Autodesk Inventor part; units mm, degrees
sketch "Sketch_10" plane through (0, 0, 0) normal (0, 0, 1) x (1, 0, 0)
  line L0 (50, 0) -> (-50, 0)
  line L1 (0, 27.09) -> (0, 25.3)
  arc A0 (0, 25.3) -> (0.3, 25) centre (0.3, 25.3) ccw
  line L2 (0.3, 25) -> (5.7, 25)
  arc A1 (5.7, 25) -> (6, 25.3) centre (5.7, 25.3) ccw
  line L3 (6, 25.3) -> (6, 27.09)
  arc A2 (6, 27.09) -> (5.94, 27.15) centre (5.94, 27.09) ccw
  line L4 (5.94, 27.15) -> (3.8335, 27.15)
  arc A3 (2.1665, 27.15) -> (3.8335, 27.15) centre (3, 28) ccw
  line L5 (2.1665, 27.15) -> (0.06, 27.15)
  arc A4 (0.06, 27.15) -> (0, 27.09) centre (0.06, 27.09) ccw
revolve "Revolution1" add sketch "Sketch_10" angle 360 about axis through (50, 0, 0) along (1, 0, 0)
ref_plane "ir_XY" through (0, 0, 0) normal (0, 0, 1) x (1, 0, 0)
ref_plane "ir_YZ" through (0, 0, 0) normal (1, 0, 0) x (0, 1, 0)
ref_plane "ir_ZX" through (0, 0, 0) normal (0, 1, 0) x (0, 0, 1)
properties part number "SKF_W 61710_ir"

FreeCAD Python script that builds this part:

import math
import FreeCAD as App
import Part
import Sketcher

V = App.Vector
Q = App.Units.Quantity

doc = App.newDocument("Part")
body = doc.addObject("PartDesign::Body", "Body")

sketch1 = body.newObject("Sketcher::SketchObject", "Sketch")
sketch1.AttachmentSupport = (doc.getObject("XY_Plane"), [""])
sketch1.MapMode = "FlatFace"
sketch1.addGeometry(Part.ArcOfCircle(Part.Circle(V(0.06, 27.09, 0), V(0, 0, 1), 0.06), math.radians(90), math.radians(180)), False)
sketch1.addGeometry(Part.LineSegment(V(0, 27.09, 0), V(0, 25.3, 0)), False)
sketch1.addGeometry(Part.ArcOfCircle(Part.Circle(V(0.3, 25.3, 0), V(0, 0, 1), 0.3), math.radians(180), math.radians(270)), False)
sketch1.addGeometry(Part.LineSegment(V(0.3, 25, 0), V(5.7, 25, 0)), False)
sketch1.addGeometry(Part.ArcOfCircle(Part.Circle(V(5.7, 25.3, 0), V(0, 0, 1), 0.3), math.radians(-90), math.radians(0)), False)
sketch1.addGeometry(Part.LineSegment(V(6, 25.3, 0), V(6, 27.09, 0)), False)
sketch1.addGeometry(Part.ArcOfCircle(Part.Circle(V(5.94, 27.09, 0), V(0, 0, 1), 0.06), math.radians(0), math.radians(90)), False)
sketch1.addGeometry(Part.LineSegment(V(5.94, 27.15, 0), V(3.83, 27.15, 0)), False)
sketch1.addGeometry(Part.ArcOfCircle(Part.Circle(V(3, 28, 0), V(0, 0, 1), 1.19), math.radians(-134), math.radians(-46)), False)
sketch1.addGeometry(Part.LineSegment(V(2.17, 27.15, 0), V(0.06, 27.15, 0)), False)
sketch1.addConstraint(Sketcher.Constraint("Tangent", 0, 2, 1, 1))
sketch1.addConstraint(Sketcher.Constraint("Tangent", 1, 2, 2, 1))
sketch1.addConstraint(Sketcher.Constraint("Tangent", 2, 2, 3, 1))
sketch1.addConstraint(Sketcher.Constraint("Tangent", 3, 2, 4, 1))
sketch1.addConstraint(Sketcher.Constraint("Tangent", 4, 2, 5, 1))
sketch1.addConstraint(Sketcher.Constraint("Tangent", 5, 2, 6, 1))
sketch1.addConstraint(Sketcher.Constraint("Tangent", 6, 2, 7, 1))
sketch1.addConstraint(Sketcher.Constraint("Coincident", 7, 2, 8, 2))
sketch1.addConstraint(Sketcher.Constraint("Coincident", 8, 1, 9, 1))
sketch1.addConstraint(Sketcher.Constraint("Tangent", 9, 2, 0, 1))
sketch1.addConstraint(Sketcher.Constraint("Vertical", 1))
sketch1.addConstraint(Sketcher.Constraint("Horizontal", 3))
sketch1.addConstraint(Sketcher.Constraint("Vertical", 5))
sketch1.addConstraint(Sketcher.Constraint("Horizontal", 7))
sketch1.addConstraint(Sketcher.Constraint("Horizontal", 9))
sketch1.addConstraint(Sketcher.Constraint("Equal", 2, 4))
sketch1.addConstraint(Sketcher.Constraint("Equal", 0, 6))
sketch1.addConstraint(Sketcher.Constraint("PointOnObject", 0, 2, -2))
sketch1.addConstraint(Sketcher.Constraint("Horizontal", 0, 3, 6, 3))
sketch1.addConstraint(Sketcher.Constraint("Equal", 7, 9))
sketch1.addConstraint(Sketcher.Constraint("Radius", 2, Q("0.3 mm")))
sketch1.addConstraint(Sketcher.Constraint("Radius", 0, Q("0.06 mm")))
sketch1.addConstraint(Sketcher.Constraint("DistanceX", 3, 1, 3, 2, Q("5.4 mm")))
sketch1.addConstraint(Sketcher.Constraint("DistanceY", -1, 1, 8, 3, Q("28 mm")))
sketch1.addConstraint(Sketcher.Constraint("DistanceY", -1, 1, 2, 2, Q("25 mm")))
sketch1.addConstraint(Sketcher.Constraint("DistanceY", 1, 2, 1, 1, Q("1.79 mm")))
sketch1.addConstraint(Sketcher.Constraint("Radius", 8, Q("1.1905 mm")))
revolution = body.newObject("PartDesign::Revolution", "Revolution")
revolution.Profile = sketch1
revolution.ReferenceAxis = (sketch1, ["H_Axis"])
revolution.Angle = 360

doc.recompute()
